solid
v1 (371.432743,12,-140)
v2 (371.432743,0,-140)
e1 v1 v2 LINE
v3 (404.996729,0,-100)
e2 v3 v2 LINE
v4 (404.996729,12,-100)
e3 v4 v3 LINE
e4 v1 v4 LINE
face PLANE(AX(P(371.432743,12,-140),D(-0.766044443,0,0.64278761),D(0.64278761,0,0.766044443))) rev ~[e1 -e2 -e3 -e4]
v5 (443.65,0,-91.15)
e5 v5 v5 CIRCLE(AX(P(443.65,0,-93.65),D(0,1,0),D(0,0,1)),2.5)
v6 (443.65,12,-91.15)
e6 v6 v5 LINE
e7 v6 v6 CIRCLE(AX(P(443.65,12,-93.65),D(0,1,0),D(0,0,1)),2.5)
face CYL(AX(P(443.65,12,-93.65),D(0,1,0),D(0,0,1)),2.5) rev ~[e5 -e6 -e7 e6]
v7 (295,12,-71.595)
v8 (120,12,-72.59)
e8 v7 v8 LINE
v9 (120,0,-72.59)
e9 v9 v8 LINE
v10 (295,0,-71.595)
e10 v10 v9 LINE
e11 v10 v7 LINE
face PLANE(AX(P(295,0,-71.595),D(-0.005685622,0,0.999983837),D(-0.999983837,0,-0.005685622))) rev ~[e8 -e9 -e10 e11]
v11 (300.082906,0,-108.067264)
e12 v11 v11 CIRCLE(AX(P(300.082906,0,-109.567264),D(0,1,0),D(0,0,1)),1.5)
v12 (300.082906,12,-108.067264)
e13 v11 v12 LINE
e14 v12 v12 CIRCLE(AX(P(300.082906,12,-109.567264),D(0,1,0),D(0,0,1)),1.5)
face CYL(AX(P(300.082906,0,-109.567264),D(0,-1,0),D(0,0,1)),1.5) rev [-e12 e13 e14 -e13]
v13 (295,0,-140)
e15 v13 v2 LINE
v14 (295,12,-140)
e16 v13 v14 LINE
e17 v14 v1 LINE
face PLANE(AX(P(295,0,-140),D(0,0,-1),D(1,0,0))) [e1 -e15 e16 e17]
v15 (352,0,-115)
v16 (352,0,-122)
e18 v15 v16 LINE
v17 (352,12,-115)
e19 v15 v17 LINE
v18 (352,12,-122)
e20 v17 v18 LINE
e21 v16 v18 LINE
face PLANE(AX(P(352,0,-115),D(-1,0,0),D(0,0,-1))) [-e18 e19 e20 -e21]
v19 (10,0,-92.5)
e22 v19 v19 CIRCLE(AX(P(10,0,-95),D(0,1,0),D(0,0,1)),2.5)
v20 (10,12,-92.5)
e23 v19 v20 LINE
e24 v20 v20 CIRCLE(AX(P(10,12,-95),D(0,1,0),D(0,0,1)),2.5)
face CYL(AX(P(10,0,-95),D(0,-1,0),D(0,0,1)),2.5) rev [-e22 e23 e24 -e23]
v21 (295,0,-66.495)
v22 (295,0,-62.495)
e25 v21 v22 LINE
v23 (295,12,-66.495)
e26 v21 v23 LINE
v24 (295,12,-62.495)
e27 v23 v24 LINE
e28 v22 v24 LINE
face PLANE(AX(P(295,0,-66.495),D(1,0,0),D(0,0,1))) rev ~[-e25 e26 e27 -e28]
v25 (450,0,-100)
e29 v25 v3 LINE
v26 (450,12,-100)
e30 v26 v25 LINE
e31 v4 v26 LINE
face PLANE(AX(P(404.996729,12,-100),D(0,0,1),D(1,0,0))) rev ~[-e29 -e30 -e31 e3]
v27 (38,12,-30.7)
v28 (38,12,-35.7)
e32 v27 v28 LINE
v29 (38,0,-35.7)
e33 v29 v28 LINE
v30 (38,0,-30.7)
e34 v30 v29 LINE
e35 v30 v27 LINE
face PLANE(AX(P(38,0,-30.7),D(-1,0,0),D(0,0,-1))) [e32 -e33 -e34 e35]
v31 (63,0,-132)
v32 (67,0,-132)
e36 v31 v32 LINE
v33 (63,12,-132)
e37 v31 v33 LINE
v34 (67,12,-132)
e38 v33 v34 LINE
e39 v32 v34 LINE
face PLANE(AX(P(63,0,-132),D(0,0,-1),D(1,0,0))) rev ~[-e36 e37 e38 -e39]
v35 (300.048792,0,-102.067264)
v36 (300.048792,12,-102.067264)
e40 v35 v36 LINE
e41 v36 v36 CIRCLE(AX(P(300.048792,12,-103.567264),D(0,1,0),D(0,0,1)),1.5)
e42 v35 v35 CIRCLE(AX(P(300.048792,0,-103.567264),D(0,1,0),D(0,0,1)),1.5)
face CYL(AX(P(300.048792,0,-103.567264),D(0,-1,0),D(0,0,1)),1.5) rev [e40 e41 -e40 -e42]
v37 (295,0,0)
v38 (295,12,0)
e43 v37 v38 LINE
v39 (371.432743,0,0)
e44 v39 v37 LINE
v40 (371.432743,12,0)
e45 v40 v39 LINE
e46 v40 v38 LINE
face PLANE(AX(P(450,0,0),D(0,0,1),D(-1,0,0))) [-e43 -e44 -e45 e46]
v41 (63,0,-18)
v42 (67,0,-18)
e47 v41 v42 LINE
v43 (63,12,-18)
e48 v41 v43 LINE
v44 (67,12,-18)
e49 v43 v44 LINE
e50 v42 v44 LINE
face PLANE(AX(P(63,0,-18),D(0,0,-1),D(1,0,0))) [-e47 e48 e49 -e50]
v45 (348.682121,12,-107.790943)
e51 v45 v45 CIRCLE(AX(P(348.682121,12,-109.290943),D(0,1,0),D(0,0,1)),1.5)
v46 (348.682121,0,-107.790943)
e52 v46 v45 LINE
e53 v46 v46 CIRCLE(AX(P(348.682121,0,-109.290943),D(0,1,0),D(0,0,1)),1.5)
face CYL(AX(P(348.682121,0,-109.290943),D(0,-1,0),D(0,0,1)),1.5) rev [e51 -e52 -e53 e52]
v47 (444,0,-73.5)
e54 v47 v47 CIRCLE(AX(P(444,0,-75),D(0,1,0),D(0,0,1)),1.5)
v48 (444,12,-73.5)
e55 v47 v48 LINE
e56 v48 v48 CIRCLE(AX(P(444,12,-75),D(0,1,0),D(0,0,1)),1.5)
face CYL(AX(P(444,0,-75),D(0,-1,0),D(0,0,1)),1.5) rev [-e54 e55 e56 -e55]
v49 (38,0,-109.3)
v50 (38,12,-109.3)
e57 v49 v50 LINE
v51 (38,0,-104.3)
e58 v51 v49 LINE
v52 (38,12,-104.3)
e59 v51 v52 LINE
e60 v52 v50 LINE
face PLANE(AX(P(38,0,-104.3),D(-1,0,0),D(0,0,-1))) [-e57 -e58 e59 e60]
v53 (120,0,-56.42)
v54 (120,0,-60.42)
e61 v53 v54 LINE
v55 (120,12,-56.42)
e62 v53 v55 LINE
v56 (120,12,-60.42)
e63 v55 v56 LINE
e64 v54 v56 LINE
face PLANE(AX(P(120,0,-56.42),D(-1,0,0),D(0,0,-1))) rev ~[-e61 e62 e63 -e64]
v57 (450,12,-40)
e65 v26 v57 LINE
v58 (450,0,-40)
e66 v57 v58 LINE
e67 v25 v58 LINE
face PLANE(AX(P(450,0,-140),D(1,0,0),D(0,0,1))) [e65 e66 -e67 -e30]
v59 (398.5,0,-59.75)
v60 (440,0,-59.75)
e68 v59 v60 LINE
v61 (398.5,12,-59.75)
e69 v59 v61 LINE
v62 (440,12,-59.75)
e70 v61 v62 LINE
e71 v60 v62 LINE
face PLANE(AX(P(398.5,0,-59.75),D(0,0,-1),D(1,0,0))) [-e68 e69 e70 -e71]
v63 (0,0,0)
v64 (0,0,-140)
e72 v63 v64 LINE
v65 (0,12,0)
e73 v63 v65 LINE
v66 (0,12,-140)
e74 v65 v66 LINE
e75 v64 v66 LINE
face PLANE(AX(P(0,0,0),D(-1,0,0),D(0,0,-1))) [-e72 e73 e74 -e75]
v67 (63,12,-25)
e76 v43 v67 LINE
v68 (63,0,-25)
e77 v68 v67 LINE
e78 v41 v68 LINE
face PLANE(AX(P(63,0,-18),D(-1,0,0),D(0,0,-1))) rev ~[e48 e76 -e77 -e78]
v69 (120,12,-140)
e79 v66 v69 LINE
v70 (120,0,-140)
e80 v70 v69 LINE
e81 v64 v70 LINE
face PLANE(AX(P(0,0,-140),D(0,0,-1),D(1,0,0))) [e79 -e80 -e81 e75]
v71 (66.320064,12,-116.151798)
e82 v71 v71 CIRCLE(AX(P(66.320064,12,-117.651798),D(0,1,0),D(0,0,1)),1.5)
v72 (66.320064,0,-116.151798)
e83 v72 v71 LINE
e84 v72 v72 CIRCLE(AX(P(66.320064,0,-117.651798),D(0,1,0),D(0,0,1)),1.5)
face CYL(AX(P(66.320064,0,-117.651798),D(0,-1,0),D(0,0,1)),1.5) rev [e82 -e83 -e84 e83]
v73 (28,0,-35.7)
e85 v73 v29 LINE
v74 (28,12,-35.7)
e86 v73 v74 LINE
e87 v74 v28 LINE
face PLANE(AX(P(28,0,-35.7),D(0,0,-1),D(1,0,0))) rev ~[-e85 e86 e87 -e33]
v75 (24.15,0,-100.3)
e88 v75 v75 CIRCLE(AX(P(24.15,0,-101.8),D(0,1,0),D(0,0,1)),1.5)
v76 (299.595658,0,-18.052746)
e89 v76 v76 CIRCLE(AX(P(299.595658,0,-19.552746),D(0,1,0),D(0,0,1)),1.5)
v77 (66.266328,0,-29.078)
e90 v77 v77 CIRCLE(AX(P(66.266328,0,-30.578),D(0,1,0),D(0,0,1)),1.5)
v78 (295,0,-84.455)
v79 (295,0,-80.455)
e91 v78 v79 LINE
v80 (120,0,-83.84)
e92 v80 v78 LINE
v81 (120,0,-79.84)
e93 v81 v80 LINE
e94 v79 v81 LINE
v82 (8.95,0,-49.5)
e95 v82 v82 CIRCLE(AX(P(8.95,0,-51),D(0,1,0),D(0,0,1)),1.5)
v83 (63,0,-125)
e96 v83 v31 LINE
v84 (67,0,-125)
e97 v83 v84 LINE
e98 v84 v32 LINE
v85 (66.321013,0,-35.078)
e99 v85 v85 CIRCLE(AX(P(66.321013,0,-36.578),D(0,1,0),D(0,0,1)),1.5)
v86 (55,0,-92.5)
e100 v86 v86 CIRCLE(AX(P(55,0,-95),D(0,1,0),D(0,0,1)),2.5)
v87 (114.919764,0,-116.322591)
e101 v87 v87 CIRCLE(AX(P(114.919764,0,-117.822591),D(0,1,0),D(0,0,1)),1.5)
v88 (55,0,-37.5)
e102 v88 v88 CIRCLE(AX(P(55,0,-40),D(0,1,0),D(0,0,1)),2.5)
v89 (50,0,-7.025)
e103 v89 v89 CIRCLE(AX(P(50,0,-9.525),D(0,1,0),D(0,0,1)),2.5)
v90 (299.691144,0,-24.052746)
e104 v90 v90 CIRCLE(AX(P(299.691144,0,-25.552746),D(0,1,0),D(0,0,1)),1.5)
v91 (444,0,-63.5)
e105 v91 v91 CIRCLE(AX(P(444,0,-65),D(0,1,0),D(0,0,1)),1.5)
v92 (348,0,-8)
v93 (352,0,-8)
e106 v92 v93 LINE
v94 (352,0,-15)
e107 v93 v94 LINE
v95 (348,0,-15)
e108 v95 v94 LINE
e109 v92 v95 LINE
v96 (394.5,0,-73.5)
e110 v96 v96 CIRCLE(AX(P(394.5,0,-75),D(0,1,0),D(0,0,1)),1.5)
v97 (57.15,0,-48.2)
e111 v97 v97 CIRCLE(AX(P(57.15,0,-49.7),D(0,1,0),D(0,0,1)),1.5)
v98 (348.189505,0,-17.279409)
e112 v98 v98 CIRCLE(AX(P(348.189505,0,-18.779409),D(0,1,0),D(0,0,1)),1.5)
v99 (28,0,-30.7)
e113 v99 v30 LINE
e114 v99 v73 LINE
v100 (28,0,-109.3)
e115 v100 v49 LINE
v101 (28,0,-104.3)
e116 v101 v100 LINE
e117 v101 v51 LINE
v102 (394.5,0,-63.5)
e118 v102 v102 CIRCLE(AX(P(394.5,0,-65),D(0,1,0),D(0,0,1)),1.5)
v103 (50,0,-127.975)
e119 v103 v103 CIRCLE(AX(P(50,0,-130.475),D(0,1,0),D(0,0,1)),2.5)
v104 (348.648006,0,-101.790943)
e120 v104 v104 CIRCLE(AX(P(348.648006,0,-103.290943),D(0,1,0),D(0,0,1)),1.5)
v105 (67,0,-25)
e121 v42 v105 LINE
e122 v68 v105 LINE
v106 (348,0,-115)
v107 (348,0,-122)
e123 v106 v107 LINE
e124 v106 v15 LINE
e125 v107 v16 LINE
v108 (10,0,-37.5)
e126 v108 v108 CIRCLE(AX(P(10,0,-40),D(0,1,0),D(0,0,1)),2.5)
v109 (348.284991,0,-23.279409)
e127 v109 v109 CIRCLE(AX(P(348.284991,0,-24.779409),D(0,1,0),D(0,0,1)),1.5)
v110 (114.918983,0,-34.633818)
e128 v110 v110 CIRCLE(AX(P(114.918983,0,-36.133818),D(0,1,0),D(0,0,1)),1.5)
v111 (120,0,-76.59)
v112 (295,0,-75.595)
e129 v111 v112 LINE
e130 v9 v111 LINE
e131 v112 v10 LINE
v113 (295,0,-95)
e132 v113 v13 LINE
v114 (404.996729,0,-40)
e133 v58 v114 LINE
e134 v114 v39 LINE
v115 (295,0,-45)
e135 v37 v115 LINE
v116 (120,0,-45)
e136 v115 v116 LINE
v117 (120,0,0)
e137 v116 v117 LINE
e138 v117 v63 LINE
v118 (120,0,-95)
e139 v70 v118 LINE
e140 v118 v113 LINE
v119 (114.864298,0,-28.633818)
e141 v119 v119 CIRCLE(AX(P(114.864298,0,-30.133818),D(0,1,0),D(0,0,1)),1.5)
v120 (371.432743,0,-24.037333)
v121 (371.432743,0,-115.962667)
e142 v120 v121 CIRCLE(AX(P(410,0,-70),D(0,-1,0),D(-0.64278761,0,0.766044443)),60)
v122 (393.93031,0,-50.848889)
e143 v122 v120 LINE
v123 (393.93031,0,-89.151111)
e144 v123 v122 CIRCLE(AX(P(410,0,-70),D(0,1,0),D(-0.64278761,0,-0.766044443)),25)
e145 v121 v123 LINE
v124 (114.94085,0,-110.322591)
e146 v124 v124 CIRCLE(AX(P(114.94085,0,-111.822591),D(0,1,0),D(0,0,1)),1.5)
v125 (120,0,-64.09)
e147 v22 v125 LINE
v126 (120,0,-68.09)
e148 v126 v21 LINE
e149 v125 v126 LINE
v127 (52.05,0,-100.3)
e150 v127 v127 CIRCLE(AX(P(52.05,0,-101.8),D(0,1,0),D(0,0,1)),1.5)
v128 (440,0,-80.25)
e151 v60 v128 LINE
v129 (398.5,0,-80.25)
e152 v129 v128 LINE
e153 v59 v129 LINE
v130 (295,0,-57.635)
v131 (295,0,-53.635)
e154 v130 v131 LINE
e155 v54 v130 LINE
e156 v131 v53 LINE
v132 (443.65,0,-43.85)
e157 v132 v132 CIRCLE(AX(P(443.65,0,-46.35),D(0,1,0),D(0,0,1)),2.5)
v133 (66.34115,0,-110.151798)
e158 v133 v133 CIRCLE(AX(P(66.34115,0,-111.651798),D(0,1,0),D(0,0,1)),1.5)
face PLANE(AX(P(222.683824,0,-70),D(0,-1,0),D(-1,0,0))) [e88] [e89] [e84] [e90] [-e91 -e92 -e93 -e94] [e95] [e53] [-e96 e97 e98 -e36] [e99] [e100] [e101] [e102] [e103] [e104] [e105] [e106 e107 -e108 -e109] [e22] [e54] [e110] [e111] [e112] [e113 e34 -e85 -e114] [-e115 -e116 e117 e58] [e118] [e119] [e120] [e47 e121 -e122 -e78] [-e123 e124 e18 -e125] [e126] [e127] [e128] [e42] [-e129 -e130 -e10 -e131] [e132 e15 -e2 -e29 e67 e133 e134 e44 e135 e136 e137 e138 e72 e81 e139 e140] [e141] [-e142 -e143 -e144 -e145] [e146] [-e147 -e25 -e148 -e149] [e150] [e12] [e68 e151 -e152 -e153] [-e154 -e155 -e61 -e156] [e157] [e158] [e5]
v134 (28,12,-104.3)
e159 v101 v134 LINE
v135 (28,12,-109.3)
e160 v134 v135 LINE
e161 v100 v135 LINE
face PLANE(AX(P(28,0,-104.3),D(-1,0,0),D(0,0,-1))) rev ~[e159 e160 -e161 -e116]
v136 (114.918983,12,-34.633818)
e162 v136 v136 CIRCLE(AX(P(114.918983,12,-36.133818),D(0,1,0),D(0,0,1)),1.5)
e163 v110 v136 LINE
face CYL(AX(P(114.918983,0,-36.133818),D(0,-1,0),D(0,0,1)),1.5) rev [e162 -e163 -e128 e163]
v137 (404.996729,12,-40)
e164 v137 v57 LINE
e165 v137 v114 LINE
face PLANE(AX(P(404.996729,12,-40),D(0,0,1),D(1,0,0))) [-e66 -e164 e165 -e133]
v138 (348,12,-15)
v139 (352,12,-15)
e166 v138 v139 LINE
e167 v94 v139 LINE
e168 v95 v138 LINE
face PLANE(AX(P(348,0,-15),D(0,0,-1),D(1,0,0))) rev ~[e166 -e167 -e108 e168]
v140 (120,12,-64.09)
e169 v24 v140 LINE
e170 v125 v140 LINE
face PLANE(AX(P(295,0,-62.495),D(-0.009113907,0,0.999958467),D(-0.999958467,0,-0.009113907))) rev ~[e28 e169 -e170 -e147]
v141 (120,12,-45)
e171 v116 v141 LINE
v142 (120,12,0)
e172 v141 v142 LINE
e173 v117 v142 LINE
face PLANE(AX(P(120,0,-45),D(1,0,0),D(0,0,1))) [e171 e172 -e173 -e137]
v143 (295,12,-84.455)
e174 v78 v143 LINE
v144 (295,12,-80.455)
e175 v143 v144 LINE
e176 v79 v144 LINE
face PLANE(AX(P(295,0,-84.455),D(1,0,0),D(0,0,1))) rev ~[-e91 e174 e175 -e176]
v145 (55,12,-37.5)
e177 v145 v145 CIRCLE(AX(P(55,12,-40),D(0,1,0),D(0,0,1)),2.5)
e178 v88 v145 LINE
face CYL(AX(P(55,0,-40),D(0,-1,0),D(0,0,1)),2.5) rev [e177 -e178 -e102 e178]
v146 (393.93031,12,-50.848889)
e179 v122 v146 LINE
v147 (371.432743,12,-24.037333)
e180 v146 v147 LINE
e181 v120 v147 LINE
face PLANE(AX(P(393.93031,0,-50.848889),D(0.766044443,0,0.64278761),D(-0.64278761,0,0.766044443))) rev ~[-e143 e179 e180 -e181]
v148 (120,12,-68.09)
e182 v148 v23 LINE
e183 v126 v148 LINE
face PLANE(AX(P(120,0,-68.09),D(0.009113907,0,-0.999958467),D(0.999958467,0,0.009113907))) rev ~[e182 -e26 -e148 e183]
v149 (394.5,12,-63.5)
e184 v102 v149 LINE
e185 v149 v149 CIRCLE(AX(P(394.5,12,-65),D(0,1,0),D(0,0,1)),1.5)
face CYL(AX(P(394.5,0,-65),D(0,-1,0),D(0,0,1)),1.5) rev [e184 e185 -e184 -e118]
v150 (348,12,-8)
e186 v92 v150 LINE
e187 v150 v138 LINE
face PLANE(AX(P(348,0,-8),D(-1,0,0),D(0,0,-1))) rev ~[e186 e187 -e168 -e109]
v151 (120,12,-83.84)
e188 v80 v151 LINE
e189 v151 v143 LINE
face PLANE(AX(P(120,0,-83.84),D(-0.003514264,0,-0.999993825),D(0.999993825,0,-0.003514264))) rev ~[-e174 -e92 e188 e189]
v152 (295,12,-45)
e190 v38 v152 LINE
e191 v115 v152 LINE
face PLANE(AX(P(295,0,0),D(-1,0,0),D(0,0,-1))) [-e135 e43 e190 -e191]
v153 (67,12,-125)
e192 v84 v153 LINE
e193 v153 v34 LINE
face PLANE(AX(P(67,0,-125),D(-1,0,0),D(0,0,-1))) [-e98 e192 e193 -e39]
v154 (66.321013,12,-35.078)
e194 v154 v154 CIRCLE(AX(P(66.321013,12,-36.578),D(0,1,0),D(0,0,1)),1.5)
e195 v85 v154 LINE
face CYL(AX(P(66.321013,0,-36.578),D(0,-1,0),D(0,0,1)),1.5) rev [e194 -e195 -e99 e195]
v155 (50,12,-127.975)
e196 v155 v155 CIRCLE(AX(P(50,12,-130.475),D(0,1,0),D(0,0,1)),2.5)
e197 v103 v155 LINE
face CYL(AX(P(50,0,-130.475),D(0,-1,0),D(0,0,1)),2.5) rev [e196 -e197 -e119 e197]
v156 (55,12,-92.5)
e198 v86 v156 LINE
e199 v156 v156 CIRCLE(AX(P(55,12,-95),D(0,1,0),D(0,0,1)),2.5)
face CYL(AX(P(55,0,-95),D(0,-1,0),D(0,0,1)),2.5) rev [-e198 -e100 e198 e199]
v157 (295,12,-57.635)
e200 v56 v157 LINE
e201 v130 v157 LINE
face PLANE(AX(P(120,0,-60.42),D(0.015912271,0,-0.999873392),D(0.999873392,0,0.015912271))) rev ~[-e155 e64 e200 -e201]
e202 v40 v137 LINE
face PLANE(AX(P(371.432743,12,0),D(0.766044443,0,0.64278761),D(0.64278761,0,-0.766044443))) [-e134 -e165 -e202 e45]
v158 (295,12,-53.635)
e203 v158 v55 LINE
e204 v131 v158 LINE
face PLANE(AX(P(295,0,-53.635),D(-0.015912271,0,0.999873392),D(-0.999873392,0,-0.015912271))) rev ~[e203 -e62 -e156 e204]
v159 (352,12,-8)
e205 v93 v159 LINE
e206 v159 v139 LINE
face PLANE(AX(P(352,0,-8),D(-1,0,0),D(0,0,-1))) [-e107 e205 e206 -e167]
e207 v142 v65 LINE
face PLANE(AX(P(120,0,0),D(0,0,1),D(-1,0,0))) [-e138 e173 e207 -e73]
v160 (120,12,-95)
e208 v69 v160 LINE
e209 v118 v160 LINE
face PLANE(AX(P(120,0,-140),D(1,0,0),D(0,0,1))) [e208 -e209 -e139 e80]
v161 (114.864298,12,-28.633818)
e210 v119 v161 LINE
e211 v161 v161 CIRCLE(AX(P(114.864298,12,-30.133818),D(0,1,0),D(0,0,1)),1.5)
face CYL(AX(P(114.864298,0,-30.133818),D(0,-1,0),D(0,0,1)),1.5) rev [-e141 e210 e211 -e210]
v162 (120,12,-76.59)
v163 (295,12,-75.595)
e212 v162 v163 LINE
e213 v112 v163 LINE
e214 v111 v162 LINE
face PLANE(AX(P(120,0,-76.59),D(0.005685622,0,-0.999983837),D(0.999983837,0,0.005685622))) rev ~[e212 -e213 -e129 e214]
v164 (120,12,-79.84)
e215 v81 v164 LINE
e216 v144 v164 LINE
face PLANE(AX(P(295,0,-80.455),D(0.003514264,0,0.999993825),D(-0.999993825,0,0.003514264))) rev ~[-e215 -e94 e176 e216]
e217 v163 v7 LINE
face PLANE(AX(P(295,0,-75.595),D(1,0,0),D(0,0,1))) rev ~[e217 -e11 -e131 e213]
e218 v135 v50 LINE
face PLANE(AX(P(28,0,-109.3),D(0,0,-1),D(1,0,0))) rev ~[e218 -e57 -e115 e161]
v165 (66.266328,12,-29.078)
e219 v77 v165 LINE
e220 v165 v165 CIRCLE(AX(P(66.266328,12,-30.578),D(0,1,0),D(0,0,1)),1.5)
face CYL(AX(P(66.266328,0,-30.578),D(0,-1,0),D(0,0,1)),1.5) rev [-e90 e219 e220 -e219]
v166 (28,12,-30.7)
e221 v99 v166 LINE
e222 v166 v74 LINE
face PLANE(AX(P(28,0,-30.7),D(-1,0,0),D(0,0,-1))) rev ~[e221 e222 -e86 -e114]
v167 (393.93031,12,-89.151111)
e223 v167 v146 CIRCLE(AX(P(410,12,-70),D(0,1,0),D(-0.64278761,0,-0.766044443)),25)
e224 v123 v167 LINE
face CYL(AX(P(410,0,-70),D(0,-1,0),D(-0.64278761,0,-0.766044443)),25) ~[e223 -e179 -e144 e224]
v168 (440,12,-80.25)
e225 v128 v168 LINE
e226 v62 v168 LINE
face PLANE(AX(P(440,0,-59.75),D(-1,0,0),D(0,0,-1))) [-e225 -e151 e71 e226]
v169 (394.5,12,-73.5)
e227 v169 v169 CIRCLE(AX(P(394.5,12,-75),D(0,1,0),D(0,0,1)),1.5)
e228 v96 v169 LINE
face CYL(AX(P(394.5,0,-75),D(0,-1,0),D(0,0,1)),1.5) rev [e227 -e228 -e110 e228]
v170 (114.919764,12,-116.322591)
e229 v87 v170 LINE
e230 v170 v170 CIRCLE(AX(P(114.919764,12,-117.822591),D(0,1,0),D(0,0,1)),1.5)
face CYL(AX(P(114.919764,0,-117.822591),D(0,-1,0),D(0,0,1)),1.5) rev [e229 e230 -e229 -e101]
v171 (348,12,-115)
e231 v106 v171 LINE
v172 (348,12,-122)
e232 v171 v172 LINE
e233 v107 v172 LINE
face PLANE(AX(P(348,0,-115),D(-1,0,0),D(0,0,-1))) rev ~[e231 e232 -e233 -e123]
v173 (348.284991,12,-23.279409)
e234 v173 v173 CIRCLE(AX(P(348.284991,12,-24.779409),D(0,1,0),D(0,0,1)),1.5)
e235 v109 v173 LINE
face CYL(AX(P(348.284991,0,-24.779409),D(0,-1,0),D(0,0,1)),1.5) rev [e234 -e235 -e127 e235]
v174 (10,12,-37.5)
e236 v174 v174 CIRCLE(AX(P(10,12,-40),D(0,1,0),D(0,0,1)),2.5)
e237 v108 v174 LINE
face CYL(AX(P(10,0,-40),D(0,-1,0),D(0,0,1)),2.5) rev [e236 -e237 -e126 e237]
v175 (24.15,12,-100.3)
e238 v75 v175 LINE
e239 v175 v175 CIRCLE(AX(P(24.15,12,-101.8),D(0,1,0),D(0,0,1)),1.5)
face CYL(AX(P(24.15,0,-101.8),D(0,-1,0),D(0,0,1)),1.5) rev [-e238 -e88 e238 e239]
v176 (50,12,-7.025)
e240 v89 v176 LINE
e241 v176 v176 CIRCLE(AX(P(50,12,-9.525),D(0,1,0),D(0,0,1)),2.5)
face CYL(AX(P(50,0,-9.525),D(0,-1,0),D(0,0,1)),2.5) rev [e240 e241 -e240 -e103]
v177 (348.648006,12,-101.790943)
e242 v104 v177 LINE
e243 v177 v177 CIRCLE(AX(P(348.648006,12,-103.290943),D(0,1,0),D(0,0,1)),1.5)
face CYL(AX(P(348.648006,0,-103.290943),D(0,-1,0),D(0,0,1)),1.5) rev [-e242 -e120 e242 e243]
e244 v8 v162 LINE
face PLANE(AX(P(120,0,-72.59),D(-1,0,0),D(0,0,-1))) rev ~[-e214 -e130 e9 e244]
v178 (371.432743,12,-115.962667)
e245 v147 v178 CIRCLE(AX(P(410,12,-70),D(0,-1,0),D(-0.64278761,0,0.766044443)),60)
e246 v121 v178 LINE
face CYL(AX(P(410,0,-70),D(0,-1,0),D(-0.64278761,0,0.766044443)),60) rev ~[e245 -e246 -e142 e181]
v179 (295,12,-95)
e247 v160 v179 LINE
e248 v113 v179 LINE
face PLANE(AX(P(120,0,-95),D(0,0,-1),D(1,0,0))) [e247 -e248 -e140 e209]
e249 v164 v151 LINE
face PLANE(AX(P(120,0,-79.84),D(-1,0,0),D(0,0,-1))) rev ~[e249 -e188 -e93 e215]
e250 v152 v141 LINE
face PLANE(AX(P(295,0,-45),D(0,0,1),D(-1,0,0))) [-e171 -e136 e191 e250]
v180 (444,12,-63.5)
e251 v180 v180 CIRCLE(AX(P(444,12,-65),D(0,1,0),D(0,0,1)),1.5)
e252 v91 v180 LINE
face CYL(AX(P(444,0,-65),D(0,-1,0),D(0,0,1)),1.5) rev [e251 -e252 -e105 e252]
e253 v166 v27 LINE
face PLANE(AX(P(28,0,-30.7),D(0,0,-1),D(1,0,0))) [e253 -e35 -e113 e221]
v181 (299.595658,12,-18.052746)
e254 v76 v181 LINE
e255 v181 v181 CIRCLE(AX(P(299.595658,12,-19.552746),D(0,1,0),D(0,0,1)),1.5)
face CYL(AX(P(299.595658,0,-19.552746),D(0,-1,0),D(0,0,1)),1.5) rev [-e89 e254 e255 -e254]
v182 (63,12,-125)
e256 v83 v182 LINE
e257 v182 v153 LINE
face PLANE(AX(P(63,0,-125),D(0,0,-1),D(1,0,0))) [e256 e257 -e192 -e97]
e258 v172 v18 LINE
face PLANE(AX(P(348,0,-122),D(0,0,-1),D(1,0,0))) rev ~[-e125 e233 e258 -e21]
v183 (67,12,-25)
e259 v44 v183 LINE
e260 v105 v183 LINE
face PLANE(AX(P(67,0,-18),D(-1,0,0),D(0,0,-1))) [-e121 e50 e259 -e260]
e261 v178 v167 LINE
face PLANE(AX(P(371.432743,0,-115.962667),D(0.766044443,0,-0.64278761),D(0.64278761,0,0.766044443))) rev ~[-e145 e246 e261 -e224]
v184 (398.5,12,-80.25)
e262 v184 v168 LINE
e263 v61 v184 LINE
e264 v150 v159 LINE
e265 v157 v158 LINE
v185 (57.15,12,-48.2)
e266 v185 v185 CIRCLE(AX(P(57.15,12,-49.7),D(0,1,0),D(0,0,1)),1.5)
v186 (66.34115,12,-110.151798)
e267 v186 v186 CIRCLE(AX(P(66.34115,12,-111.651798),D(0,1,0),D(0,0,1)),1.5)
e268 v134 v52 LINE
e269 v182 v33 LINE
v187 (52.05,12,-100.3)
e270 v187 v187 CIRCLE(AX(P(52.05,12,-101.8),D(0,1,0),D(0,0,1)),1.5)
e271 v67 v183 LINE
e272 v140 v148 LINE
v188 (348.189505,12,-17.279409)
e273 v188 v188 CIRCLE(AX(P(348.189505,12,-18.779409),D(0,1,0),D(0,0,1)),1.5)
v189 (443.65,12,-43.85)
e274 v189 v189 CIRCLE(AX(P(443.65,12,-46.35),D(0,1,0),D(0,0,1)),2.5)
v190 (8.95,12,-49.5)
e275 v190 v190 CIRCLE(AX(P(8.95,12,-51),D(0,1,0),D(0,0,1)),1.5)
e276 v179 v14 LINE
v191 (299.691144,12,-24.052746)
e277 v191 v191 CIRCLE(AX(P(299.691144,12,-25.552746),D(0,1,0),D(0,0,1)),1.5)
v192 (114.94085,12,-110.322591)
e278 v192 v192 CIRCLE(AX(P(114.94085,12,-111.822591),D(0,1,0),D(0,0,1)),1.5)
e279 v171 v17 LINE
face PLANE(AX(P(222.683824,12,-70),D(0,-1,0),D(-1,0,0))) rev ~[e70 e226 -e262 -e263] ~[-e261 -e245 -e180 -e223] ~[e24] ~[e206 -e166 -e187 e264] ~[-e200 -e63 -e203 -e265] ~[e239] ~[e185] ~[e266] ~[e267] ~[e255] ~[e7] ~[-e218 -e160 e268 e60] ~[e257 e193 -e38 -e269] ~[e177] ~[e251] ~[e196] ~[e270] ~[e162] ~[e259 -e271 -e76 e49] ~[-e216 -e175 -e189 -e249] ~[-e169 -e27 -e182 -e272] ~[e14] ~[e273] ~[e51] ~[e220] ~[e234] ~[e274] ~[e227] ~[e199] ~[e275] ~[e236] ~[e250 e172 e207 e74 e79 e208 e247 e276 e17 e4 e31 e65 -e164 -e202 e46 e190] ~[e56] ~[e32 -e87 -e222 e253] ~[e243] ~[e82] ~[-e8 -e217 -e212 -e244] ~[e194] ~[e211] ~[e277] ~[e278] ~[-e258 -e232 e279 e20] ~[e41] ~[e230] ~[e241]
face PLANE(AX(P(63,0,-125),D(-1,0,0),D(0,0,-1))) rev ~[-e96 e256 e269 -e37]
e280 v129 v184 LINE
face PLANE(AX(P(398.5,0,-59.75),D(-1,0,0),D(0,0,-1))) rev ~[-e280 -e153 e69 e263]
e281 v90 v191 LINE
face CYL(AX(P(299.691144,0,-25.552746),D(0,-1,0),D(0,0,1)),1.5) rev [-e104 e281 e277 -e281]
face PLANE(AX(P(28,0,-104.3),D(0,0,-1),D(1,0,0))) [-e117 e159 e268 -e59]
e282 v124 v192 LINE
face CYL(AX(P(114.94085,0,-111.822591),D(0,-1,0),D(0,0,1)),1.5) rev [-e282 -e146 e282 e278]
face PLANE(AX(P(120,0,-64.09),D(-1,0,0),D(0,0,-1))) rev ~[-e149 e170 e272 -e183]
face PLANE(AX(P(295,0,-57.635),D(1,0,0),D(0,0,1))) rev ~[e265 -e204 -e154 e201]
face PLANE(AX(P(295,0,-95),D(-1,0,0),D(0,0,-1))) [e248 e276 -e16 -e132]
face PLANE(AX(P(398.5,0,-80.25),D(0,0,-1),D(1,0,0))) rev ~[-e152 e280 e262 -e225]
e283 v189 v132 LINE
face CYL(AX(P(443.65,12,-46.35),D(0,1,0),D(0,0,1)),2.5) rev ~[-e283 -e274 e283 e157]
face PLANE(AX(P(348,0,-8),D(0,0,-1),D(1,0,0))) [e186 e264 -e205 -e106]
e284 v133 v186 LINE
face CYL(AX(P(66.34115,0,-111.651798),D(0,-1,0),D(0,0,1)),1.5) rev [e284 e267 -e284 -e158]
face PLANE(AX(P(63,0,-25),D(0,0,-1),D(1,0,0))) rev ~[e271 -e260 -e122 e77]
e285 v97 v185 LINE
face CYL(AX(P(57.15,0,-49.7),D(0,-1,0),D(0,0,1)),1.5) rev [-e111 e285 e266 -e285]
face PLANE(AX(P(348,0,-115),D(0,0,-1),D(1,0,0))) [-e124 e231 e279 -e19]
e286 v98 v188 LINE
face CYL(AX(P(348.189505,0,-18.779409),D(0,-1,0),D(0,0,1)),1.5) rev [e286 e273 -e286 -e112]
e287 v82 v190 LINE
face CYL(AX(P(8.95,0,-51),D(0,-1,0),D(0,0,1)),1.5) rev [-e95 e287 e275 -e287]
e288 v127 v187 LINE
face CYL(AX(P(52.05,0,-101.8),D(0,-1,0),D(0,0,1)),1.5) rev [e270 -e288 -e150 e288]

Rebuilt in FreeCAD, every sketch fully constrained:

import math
import FreeCAD as App
import Part
import Sketcher
from FreeCAD import Vector
Q = App.Units.Quantity


def add_polygon(sketch, points):
    """Adds a closed chain of lines whose ends are joined by coincident constraints."""
    first, n = sketch.GeometryCount, len(points)
    for a, b in zip(points, points[1:] + points[:1]):
        sketch.addGeometry(Part.LineSegment(App.Vector(*a, 0), App.Vector(*b, 0)), False)
    for i in range(n):
        sketch.addConstraint(Sketcher.Constraint("Coincident", first + i, 2, first + (i + 1) % n, 1))

doc = App.newDocument("Part")
body = doc.addObject("PartDesign::Body", "Body")

# Sketch on XZ plane
sketch1 = body.newObject("Sketcher::SketchObject", "Sketch")
sketch1.AttachmentSupport = (doc.getObject("XZ_Plane"), [""])
sketch1.MapMode = "FlatFace"
add_polygon(sketch1, [(450, -140), (295, -140), (295, -95), (120, -95), (120, -140), (0, -140), (0, 0), (120, 0), (120, -45), (295, -45), (295, 0), (450, 0)])  # lines 0-11
add_polygon(sketch1, [(348, -8), (348, -15), (352, -15), (352, -8)])  # lines 12-15
sketch1.addGeometry(Part.Circle(Vector(348.189505, -18.779409, 0), Vector(0, 0, 1), 1.5), False)  # 16
sketch1.addGeometry(Part.Circle(Vector(348.284991, -24.779409, 0), Vector(0, 0, 1), 1.5), False)  # 17
sketch1.addGeometry(Part.Circle(Vector(299.595658, -19.552746, 0), Vector(0, 0, 1), 1.5), False)  # 18
sketch1.addGeometry(Part.Circle(Vector(299.691144, -25.552746, 0), Vector(0, 0, 1), 1.5), False)  # 19
sketch1.addGeometry(Part.Circle(Vector(444, -65, 0), Vector(0, 0, 1), 1.5), False)  # 20
sketch1.addGeometry(Part.Circle(Vector(394.5, -65, 0), Vector(0, 0, 1), 1.5), False)  # 21
add_polygon(sketch1, [(63, -18), (63, -25), (67, -25), (67, -18)])  # lines 22-25
sketch1.addGeometry(Part.Circle(Vector(50, -9.525, 0), Vector(0, 0, 1), 2.5), False)  # 26
sketch1.addGeometry(Part.Circle(Vector(114.864298, -30.133818, 0), Vector(0, 0, 1), 1.5), False)  # 27
sketch1.addGeometry(Part.Circle(Vector(66.266328, -30.578, 0), Vector(0, 0, 1), 1.5), False)  # 28
sketch1.addGeometry(Part.Circle(Vector(114.918983, -36.133818, 0), Vector(0, 0, 1), 1.5), False)  # 29
sketch1.addGeometry(Part.Circle(Vector(66.321013, -36.578, 0), Vector(0, 0, 1), 1.5), False)  # 30
add_polygon(sketch1, [(28, -30.7), (28, -35.7), (38, -35.7), (38, -30.7)])  # lines 31-34
add_polygon(sketch1, [(120, -60.42), (295, -57.635), (295, -53.635), (120, -56.42)])  # lines 35-38
add_polygon(sketch1, [(120, -68.09), (295, -66.495), (295, -62.495), (120, -64.09)])  # lines 39-42
sketch1.addGeometry(Part.Circle(Vector(55, -40, 0), Vector(0, 0, 1), 2.5), False)  # 43
sketch1.addGeometry(Part.Circle(Vector(10, -40, 0), Vector(0, 0, 1), 2.5), False)  # 44
sketch1.addGeometry(Part.Circle(Vector(57.15, -49.7, 0), Vector(0, 0, 1), 1.5), False)  # 45
sketch1.addGeometry(Part.Circle(Vector(8.95, -51, 0), Vector(0, 0, 1), 1.5), False)  # 46
add_polygon(sketch1, [(398.5, -59.75), (398.5, -80.25), (440, -80.25), (440, -59.75)])  # lines 47-50
sketch1.addGeometry(Part.Circle(Vector(444, -75, 0), Vector(0, 0, 1), 1.5), False)  # 51
sketch1.addGeometry(Part.Circle(Vector(394.5, -75, 0), Vector(0, 0, 1), 1.5), False)  # 52
sketch1.addGeometry(Part.LineSegment(Vector(393.93031, -50.848889, 0), Vector(371.432743, -24.037333, 0)), False)  # 53
sketch1.addGeometry(Part.ArcOfCircle(Part.Circle(Vector(410, -70, 0), Vector(0, 0, 1), 60), math.radians(130), math.radians(230)), False)  # 54
sketch1.addGeometry(Part.LineSegment(Vector(371.432743, -115.962667, 0), Vector(393.93031, -89.151111, 0)), False)  # 55
sketch1.addGeometry(Part.ArcOfCircle(Part.Circle(Vector(410, -70, 0), Vector(0, 0, 1), 25), math.radians(130), math.radians(230)), False)  # 56
sketch1.addGeometry(Part.Circle(Vector(348.648006, -103.290943, 0), Vector(0, 0, 1), 1.5), False)  # 57
sketch1.addGeometry(Part.Circle(Vector(348.682121, -109.290943, 0), Vector(0, 0, 1), 1.5), False)  # 58
add_polygon(sketch1, [(348, -115), (348, -122), (352, -122), (352, -115)])  # lines 59-62
sketch1.addGeometry(Part.Circle(Vector(300.048792, -103.567264, 0), Vector(0, 0, 1), 1.5), False)  # 63
sketch1.addGeometry(Part.Circle(Vector(300.082906, -109.567264, 0), Vector(0, 0, 1), 1.5), False)  # 64
add_polygon(sketch1, [(120, -76.59), (295, -75.595), (295, -71.595), (120, -72.59)])  # lines 65-68
add_polygon(sketch1, [(120, -83.84), (295, -84.455), (295, -80.455), (120, -79.84)])  # lines 69-72
sketch1.addGeometry(Part.Circle(Vector(55, -95, 0), Vector(0, 0, 1), 2.5), False)  # 73
sketch1.addGeometry(Part.Circle(Vector(10, -95, 0), Vector(0, 0, 1), 2.5), False)  # 74
sketch1.addGeometry(Part.Circle(Vector(114.94085, -111.822591, 0), Vector(0, 0, 1), 1.5), False)  # 75
sketch1.addGeometry(Part.Circle(Vector(66.34115, -111.651798, 0), Vector(0, 0, 1), 1.5), False)  # 76
sketch1.addGeometry(Part.Circle(Vector(52.05, -101.8, 0), Vector(0, 0, 1), 1.5), False)  # 77
sketch1.addGeometry(Part.Circle(Vector(24.15, -101.8, 0), Vector(0, 0, 1), 1.5), False)  # 78
add_polygon(sketch1, [(28, -104.3), (28, -109.3), (38, -109.3), (38, -104.3)])  # lines 79-82
sketch1.addGeometry(Part.Circle(Vector(114.919764, -117.822591, 0), Vector(0, 0, 1), 1.5), False)  # 83
sketch1.addGeometry(Part.Circle(Vector(66.320064, -117.651798, 0), Vector(0, 0, 1), 1.5), False)  # 84
add_polygon(sketch1, [(63, -125), (63, -132), (67, -132), (67, -125)])  # lines 85-88
sketch1.addGeometry(Part.Circle(Vector(50, -130.475, 0), Vector(0, 0, 1), 2.5), False)  # 89
sketch1.addConstraint(Sketcher.Constraint("Coincident", 53, 2, 54, 1))
sketch1.addConstraint(Sketcher.Constraint("Coincident", 54, 2, 55, 1))
sketch1.addConstraint(Sketcher.Constraint("Coincident", 55, 2, 56, 2))
sketch1.addConstraint(Sketcher.Constraint("Coincident", 56, 1, 53, 1))
sketch1.addConstraint(Sketcher.Constraint("Horizontal", 0))
sketch1.addConstraint(Sketcher.Constraint("Vertical", 1))
sketch1.addConstraint(Sketcher.Constraint("Horizontal", 2))
sketch1.addConstraint(Sketcher.Constraint("Vertical", 3))
sketch1.addConstraint(Sketcher.Constraint("Horizontal", 4))
sketch1.addConstraint(Sketcher.Constraint("Vertical", 5))
sketch1.addConstraint(Sketcher.Constraint("Horizontal", 6))
sketch1.addConstraint(Sketcher.Constraint("Vertical", 7))
sketch1.addConstraint(Sketcher.Constraint("Horizontal", 8))
sketch1.addConstraint(Sketcher.Constraint("Vertical", 9))
sketch1.addConstraint(Sketcher.Constraint("Horizontal", 10))
sketch1.addConstraint(Sketcher.Constraint("Vertical", 11))
sketch1.addConstraint(Sketcher.Constraint("Vertical", 12))
sketch1.addConstraint(Sketcher.Constraint("Horizontal", 13))
sketch1.addConstraint(Sketcher.Constraint("Vertical", 14))
sketch1.addConstraint(Sketcher.Constraint("Horizontal", 15))
sketch1.addConstraint(Sketcher.Constraint("Vertical", 22))
sketch1.addConstraint(Sketcher.Constraint("Horizontal", 23))
sketch1.addConstraint(Sketcher.Constraint("Vertical", 24))
sketch1.addConstraint(Sketcher.Constraint("Horizontal", 25))
sketch1.addConstraint(Sketcher.Constraint("Vertical", 31))
sketch1.addConstraint(Sketcher.Constraint("Horizontal", 32))
sketch1.addConstraint(Sketcher.Constraint("Vertical", 33))
sketch1.addConstraint(Sketcher.Constraint("Horizontal", 34))
sketch1.addConstraint(Sketcher.Constraint("Vertical", 36))
sketch1.addConstraint(Sketcher.Constraint("Vertical", 38))
sketch1.addConstraint(Sketcher.Constraint("Vertical", 40))
sketch1.addConstraint(Sketcher.Constraint("Vertical", 42))
sketch1.addConstraint(Sketcher.Constraint("Vertical", 47))
sketch1.addConstraint(Sketcher.Constraint("Horizontal", 48))
sketch1.addConstraint(Sketcher.Constraint("Vertical", 49))
sketch1.addConstraint(Sketcher.Constraint("Horizontal", 50))
sketch1.addConstraint(Sketcher.Constraint("Vertical", 59))
sketch1.addConstraint(Sketcher.Constraint("Horizontal", 60))
sketch1.addConstraint(Sketcher.Constraint("Vertical", 61))
sketch1.addConstraint(Sketcher.Constraint("Horizontal", 62))
sketch1.addConstraint(Sketcher.Constraint("Vertical", 66))
sketch1.addConstraint(Sketcher.Constraint("Vertical", 68))
sketch1.addConstraint(Sketcher.Constraint("Vertical", 70))
sketch1.addConstraint(Sketcher.Constraint("Vertical", 72))
sketch1.addConstraint(Sketcher.Constraint("Vertical", 79))
sketch1.addConstraint(Sketcher.Constraint("Horizontal", 80))
sketch1.addConstraint(Sketcher.Constraint("Vertical", 81))
sketch1.addConstraint(Sketcher.Constraint("Horizontal", 82))
sketch1.addConstraint(Sketcher.Constraint("Vertical", 85))
sketch1.addConstraint(Sketcher.Constraint("Horizontal", 86))
sketch1.addConstraint(Sketcher.Constraint("Vertical", 87))
sketch1.addConstraint(Sketcher.Constraint("Horizontal", 88))
sketch1.addConstraint(Sketcher.Constraint("Coincident", 5, 2, -1, 1))
sketch1.addConstraint(Sketcher.Constraint("Coincident", 56, 3, 54, 3))
sketch1.addConstraint(Sketcher.Constraint("Equal", 16, 17))
sketch1.addConstraint(Sketcher.Constraint("Equal", 17, 18))
sketch1.addConstraint(Sketcher.Constraint("Equal", 18, 19))
sketch1.addConstraint(Sketcher.Constraint("Equal", 19, 20))
sketch1.addConstraint(Sketcher.Constraint("Equal", 20, 21))
sketch1.addConstraint(Sketcher.Constraint("Equal", 21, 27))
sketch1.addConstraint(Sketcher.Constraint("Equal", 27, 28))
sketch1.addConstraint(Sketcher.Constraint("Equal", 28, 29))
sketch1.addConstraint(Sketcher.Constraint("Equal", 29, 30))
sketch1.addConstraint(Sketcher.Constraint("Equal", 26, 43))
sketch1.addConstraint(Sketcher.Constraint("Equal", 43, 44))
sketch1.addConstraint(Sketcher.Constraint("Equal", 30, 45))
sketch1.addConstraint(Sketcher.Constraint("Equal", 45, 46))
sketch1.addConstraint(Sketcher.Constraint("Equal", 46, 51))
sketch1.addConstraint(Sketcher.Constraint("Equal", 51, 52))
sketch1.addConstraint(Sketcher.Constraint("Equal", 52, 57))
sketch1.addConstraint(Sketcher.Constraint("Equal", 57, 58))
sketch1.addConstraint(Sketcher.Constraint("Equal", 58, 63))
sketch1.addConstraint(Sketcher.Constraint("Equal", 63, 64))
sketch1.addConstraint(Sketcher.Constraint("Equal", 44, 73))
sketch1.addConstraint(Sketcher.Constraint("Equal", 73, 74))
sketch1.addConstraint(Sketcher.Constraint("Equal", 64, 75))
sketch1.addConstraint(Sketcher.Constraint("Equal", 75, 76))
sketch1.addConstraint(Sketcher.Constraint("Equal", 76, 77))
sketch1.addConstraint(Sketcher.Constraint("Equal", 77, 78))
sketch1.addConstraint(Sketcher.Constraint("Equal", 78, 83))
sketch1.addConstraint(Sketcher.Constraint("Equal", 83, 84))
sketch1.addConstraint(Sketcher.Constraint("Equal", 74, 89))
sketch1.addConstraint(Sketcher.Constraint("PointOnObject", 9, 2, -1))
sketch1.addConstraint(Sketcher.Constraint("Parallel", 35, 37))
sketch1.addConstraint(Sketcher.Constraint("Parallel", 39, 41))
sketch1.addConstraint(Sketcher.Constraint("Parallel", 65, 67))
sketch1.addConstraint(Sketcher.Constraint("Parallel", 69, 71))
sketch1.addConstraint(Sketcher.Constraint("Horizontal", 20, 3, 21, 3))
sketch1.addConstraint(Sketcher.Constraint("Horizontal", 43, 3, 44, 3))
sketch1.addConstraint(Sketcher.Constraint("Horizontal", 51, 3, 52, 3))
sketch1.addConstraint(Sketcher.Constraint("Horizontal", 73, 3, 74, 3))
sketch1.addConstraint(Sketcher.Constraint("Horizontal", 77, 3, 78, 3))
sketch1.addConstraint(Sketcher.Constraint("Horizontal", 74, 3, 1, 2))
sketch1.addConstraint(Sketcher.Constraint("Horizontal", 0, 2, 3, 2))
sketch1.addConstraint(Sketcher.Constraint("Vertical", 20, 3, 51, 3))
sketch1.addConstraint(Sketcher.Constraint("Vertical", 21, 3, 52, 3))
sketch1.addConstraint(Sketcher.Constraint("Vertical", 43, 3, 73, 3))
sketch1.addConstraint(Sketcher.Constraint("Vertical", 44, 3, 74, 3))
sketch1.addConstraint(Sketcher.Constraint("Vertical", 26, 3, 89, 3))
sketch1.addConstraint(Sketcher.Constraint("Vertical", 3, 2, 6, 2))
sketch1.addConstraint(Sketcher.Constraint("Vertical", 1, 2, 8, 2))
sketch1.addConstraint(Sketcher.Constraint("Vertical", 9, 2, 35, 2))
sketch1.addConstraint(Sketcher.Constraint("Vertical", 7, 2, 37, 2))
sketch1.addConstraint(Sketcher.Constraint("Vertical", 36, 2, 39, 2))
sketch1.addConstraint(Sketcher.Constraint("Vertical", 38, 2, 41, 2))
sketch1.addConstraint(Sketcher.Constraint("Vertical", 53, 2, 54, 2))
sketch1.addConstraint(Sketcher.Constraint("Vertical", 55, 2, 56, 1))
sketch1.addConstraint(Sketcher.Constraint("Vertical", 15, 2, 59, 2))
sketch1.addConstraint(Sketcher.Constraint("Vertical", 14, 2, 60, 2))
sketch1.addConstraint(Sketcher.Constraint("Vertical", 40, 2, 65, 2))
sketch1.addConstraint(Sketcher.Constraint("Vertical", 42, 2, 67, 2))
sketch1.addConstraint(Sketcher.Constraint("Vertical", 66, 2, 69, 2))
sketch1.addConstraint(Sketcher.Constraint("Vertical", 68, 2, 71, 2))
sketch1.addConstraint(Sketcher.Constraint("Vertical", 34, 2, 79, 2))
sketch1.addConstraint(Sketcher.Constraint("Vertical", 33, 2, 80, 2))
sketch1.addConstraint(Sketcher.Constraint("Vertical", 25, 2, 85, 2))
sketch1.addConstraint(Sketcher.Constraint("Vertical", 24, 2, 86, 2))
sketch1.addConstraint(Sketcher.Constraint("Equal", 15, 23))
sketch1.addConstraint(Sketcher.Constraint("Equal", 3, 7))
sketch1.addConstraint(Sketcher.Constraint("Equal", 14, 22))
sketch1.addConstraint(Sketcher.Constraint("Equal", 88, 36))
sketch1.addConstraint(Sketcher.Constraint("Equal", 38, 40))
sketch1.addConstraint(Sketcher.Constraint("Equal", 24, 59))
sketch1.addConstraint(Sketcher.Constraint("Equal", 42, 66))
sketch1.addConstraint(Sketcher.Constraint("Equal", 68, 70))
sketch1.addConstraint(Sketcher.Constraint("Equal", 33, 79))
sketch1.addConstraint(Sketcher.Constraint("Equal", 61, 85))
sketch1.addConstraint(Sketcher.Constraint("Diameter", 16, 3.0))
sketch1.addConstraint(Sketcher.Constraint("Diameter", 26, 5.0))
sketch1.addConstraint(Sketcher.Constraint("Radius", 54, 60.0))
sketch1.addConstraint(Sketcher.Constraint("Radius", 56, 25.0))
sketch1.addConstraint(Sketcher.Constraint("DistanceX", 0, 2, 0, 1, 155.0))
sketch1.addConstraint(Sketcher.Constraint("DistanceX", 2, 2, 2, 1, 175.0))
sketch1.addConstraint(Sketcher.Constraint("DistanceX", 4, 2, 4, 1, 120.0))
sketch1.addConstraint(Sketcher.Constraint("DistanceX", 13, 1, 13, 2, 4.0))
sketch1.addConstraint(Sketcher.Constraint("DistanceX", 32, 1, 32, 2, 10.0))
sketch1.addConstraint(Sketcher.Constraint("DistanceY", 1, 1, 1, 2, 45.0))
sketch1.addConstraint(Sketcher.Constraint("DistanceY", 5, 1, 5, 2, 140.0))
sketch1.addConstraint(Sketcher.Constraint("DistanceY", 12, 2, 12, 1, 7.0))
sketch1.addConstraint(Sketcher.Constraint("DistanceY", 31, 2, 31, 1, 5.0))
sketch1.addConstraint(Sketcher.Constraint("Angle", 53, Q("130 deg")))
sketch1.addConstraint(Sketcher.Constraint("DistanceX", 48, 1, 48, 2, 41.5))
sketch1.addConstraint(Sketcher.Constraint("DistanceY", 47, 2, 47, 1, 20.5))
sketch1.addConstraint(Sketcher.Constraint("DistanceX", -1, 1, 20, 3, 444.0))
sketch1.addConstraint(Sketcher.Constraint("DistanceY", 20, 3, -1, 1, 65.0))
sketch1.addConstraint(Sketcher.Constraint("DistanceX", -1, 1, 26, 3, 50.0))
sketch1.addConstraint(Sketcher.Constraint("DistanceX", -1, 1, 43, 3, 55.0))
sketch1.addConstraint(Sketcher.Constraint("DistanceY", 43, 3, -1, 1, 40.0))
sketch1.addConstraint(Sketcher.Constraint("DistanceX", -1, 1, 44, 3, 10.0))
sketch1.addConstraint(Sketcher.Constraint("DistanceY", 46, 3, -1, 1, 51.0))
sketch1.addConstraint(Sketcher.Constraint("DistanceY", 51, 3, -1, 1, 75.0))
sketch1.addConstraint(Sketcher.Constraint("DistanceX", -1, 1, 54, 3, 410.0))
sketch1.addConstraint(Sketcher.Constraint("DistanceY", 54, 3, -1, 1, 70.0))
sketch1.addConstraint(Sketcher.Constraint("DistanceX", -1, 1, 12, 2, 348.0))
sketch1.addConstraint(Sketcher.Constraint("DistanceY", 12, 2, -1, 1, 15.0))
sketch1.addConstraint(Sketcher.Constraint("DistanceX", -1, 1, 22, 2, 63.0))
sketch1.addConstraint(Sketcher.Constraint("DistanceY", 22, 2, -1, 1, 25.0))
sketch1.addConstraint(Sketcher.Constraint("DistanceX", -1, 1, 31, 2, 28.0))
sketch1.addConstraint(Sketcher.Constraint("DistanceX", -1, 1, 48, 2, 440.0))
sketch1.addConstraint(Sketcher.Constraint("DistanceY", 59, 2, -1, 1, 122.0))
sketch1.addConstraint(Sketcher.Constraint("DistanceY", 85, 2, -1, 1, 132.0))
sketch1.addConstraint(Sketcher.Constraint("DistanceX", -1, 1, 21, 3, 394.5))
sketch1.addConstraint(Sketcher.Constraint("DistanceY", 45, 3, -1, 1, 49.7))
sketch1.addConstraint(Sketcher.Constraint("DistanceY", 77, 3, -1, 1, 101.8))
sketch1.addConstraint(Sketcher.Constraint("DistanceY", 31, 2, -1, 1, 35.7))
sketch1.addConstraint(Sketcher.Constraint("DistanceY", 79, 2, -1, 1, 109.3))
sketch1.addConstraint(Sketcher.Constraint("DistanceX", -1, 1, 45, 3, 57.15))
sketch1.addConstraint(Sketcher.Constraint("DistanceX", -1, 1, 46, 3, 8.95))
sketch1.addConstraint(Sketcher.Constraint("DistanceX", -1, 1, 77, 3, 52.05))
sketch1.addConstraint(Sketcher.Constraint("DistanceX", -1, 1, 78, 3, 24.15))
sketch1.addConstraint(Sketcher.Constraint("DistanceY", 37, 2, -1, 1, 56.42))
sketch1.addConstraint(Sketcher.Constraint("DistanceY", 41, 2, -1, 1, 64.09))
sketch1.addConstraint(Sketcher.Constraint("DistanceY", 47, 2, -1, 1, 80.25))
sketch1.addConstraint(Sketcher.Constraint("DistanceY", 67, 2, -1, 1, 72.59))
sketch1.addConstraint(Sketcher.Constraint("DistanceY", 71, 2, -1, 1, 79.84))
sketch1.addConstraint(Sketcher.Constraint("DistanceY", 26, 3, -1, 1, 9.525))
sketch1.addConstraint(Sketcher.Constraint("DistanceY", 28, 3, -1, 1, 30.578))
sketch1.addConstraint(Sketcher.Constraint("DistanceY", 30, 3, -1, 1, 36.578))
sketch1.addConstraint(Sketcher.Constraint("DistanceY", 89, 3, -1, 1, 130.475))
sketch1.addConstraint(Sketcher.Constraint("DistanceY", 35, 2, -1, 1, 57.635))
sketch1.addConstraint(Sketcher.Constraint("DistanceY", 39, 2, -1, 1, 66.495))
sketch1.addConstraint(Sketcher.Constraint("DistanceY", 65, 2, -1, 1, 75.595))
sketch1.addConstraint(Sketcher.Constraint("DistanceY", 69, 2, -1, 1, 84.455))
sketch1.addConstraint(Sketcher.Constraint("DistanceY", 16, 3, -1, 1, 18.779409))
sketch1.addConstraint(Sketcher.Constraint("DistanceX", -1, 1, 17, 3, 348.284991))
sketch1.addConstraint(Sketcher.Constraint("DistanceY", 17, 3, -1, 1, 24.779409))
sketch1.addConstraint(Sketcher.Constraint("DistanceX", -1, 1, 18, 3, 299.595658))
sketch1.addConstraint(Sketcher.Constraint("DistanceX", -1, 1, 58, 3, 348.682121))
sketch1.addConstraint(Sketcher.Constraint("DistanceX", -1, 1, 63, 3, 300.048792))
sketch1.addConstraint(Sketcher.Constraint("DistanceX", -1, 1, 75, 3, 114.94085))
sketch1.addConstraint(Sketcher.Constraint("DistanceY", 75, 3, -1, 1, 111.822591))
sketch1.addConstraint(Sketcher.Constraint("DistanceX", -1, 1, 76, 3, 66.34115))
sketch1.addConstraint(Sketcher.Constraint("DistanceY", 83, 3, -1, 1, 117.822591))
sketch1.addConstraint(Sketcher.Constraint("DistanceX", -1, 1, 55, 2, 393.93031))
sketch1.addConstraint(Sketcher.Constraint("DistanceX", -1, 1, 16, 3, 348.189505))
sketch1.addConstraint(Sketcher.Constraint("DistanceY", 18, 3, -1, 1, 19.552746))
sketch1.addConstraint(Sketcher.Constraint("DistanceX", -1, 1, 19, 3, 299.691144))
sketch1.addConstraint(Sketcher.Constraint("DistanceY", 19, 3, -1, 1, 25.552746))
sketch1.addConstraint(Sketcher.Constraint("DistanceX", -1, 1, 27, 3, 114.864298))
sketch1.addConstraint(Sketcher.Constraint("DistanceY", 27, 3, -1, 1, 30.133818))
sketch1.addConstraint(Sketcher.Constraint("DistanceX", -1, 1, 28, 3, 66.266328))
sketch1.addConstraint(Sketcher.Constraint("DistanceX", -1, 1, 29, 3, 114.918983))
sketch1.addConstraint(Sketcher.Constraint("DistanceY", 29, 3, -1, 1, 36.133818))
sketch1.addConstraint(Sketcher.Constraint("DistanceX", -1, 1, 30, 3, 66.321013))
sketch1.addConstraint(Sketcher.Constraint("DistanceX", -1, 1, 57, 3, 348.648006))
sketch1.addConstraint(Sketcher.Constraint("DistanceY", 57, 3, -1, 1, 103.290943))
sketch1.addConstraint(Sketcher.Constraint("DistanceY", 58, 3, -1, 1, 109.290943))
sketch1.addConstraint(Sketcher.Constraint("DistanceY", 63, 3, -1, 1, 103.567264))
sketch1.addConstraint(Sketcher.Constraint("DistanceX", -1, 1, 64, 3, 300.082906))
sketch1.addConstraint(Sketcher.Constraint("DistanceY", 64, 3, -1, 1, 109.567264))
sketch1.addConstraint(Sketcher.Constraint("DistanceY", 76, 3, -1, 1, 111.651798))
sketch1.addConstraint(Sketcher.Constraint("DistanceX", -1, 1, 83, 3, 114.919764))
sketch1.addConstraint(Sketcher.Constraint("DistanceX", -1, 1, 84, 3, 66.320064))
sketch1.addConstraint(Sketcher.Constraint("DistanceY", 84, 3, -1, 1, 117.651798))
pad1 = body.newObject("PartDesign::Pad", "Pad")
pad1.Profile = sketch1
pad1.Length = 12
pad1.Reversed = True

# Sketch on XZ plane
sketch2 = body.newObject("Sketcher::SketchObject", "Sketch001")
sketch2.AttachmentSupport = (doc.getObject("XZ_Plane"), [""])
sketch2.MapMode = "FlatFace"
sketch2.AttachmentOffset = App.Placement(Vector(0, 0, -12), App.Rotation())
sketch2.addGeometry(Part.Circle(Vector(443.65, -93.65, 0), Vector(0, 0, 1), 2.5), False)  # 0
sketch2.addGeometry(Part.Circle(Vector(443.65, -46.35, 0), Vector(0, 0, 1), 2.5), False)  # 1
add_polygon(sketch2, [(371.432743, -140), (404.996729, -100), (450, -100), (450, -140)])  # lines 2-5
add_polygon(sketch2, [(404.996729, -40), (371.432743, 0), (450, 0), (450, -40)])  # lines 6-9
sketch2.addConstraint(Sketcher.Constraint("Horizontal", 3))
sketch2.addConstraint(Sketcher.Constraint("Vertical", 4))
sketch2.addConstraint(Sketcher.Constraint("Horizontal", 5))
sketch2.addConstraint(Sketcher.Constraint("Horizontal", 7))
sketch2.addConstraint(Sketcher.Constraint("Vertical", 8))
sketch2.addConstraint(Sketcher.Constraint("Horizontal", 9))
sketch2.addConstraint(Sketcher.Constraint("Equal", 0, 1))
sketch2.addConstraint(Sketcher.Constraint("PointOnObject", 6, 2, -1))
sketch2.addConstraint(Sketcher.Constraint("Vertical", 0, 3, 1, 3))
sketch2.addConstraint(Sketcher.Constraint("Vertical", 5, 2, 6, 2))
sketch2.addConstraint(Sketcher.Constraint("Vertical", 4, 2, 7, 2))
sketch2.addConstraint(Sketcher.Constraint("Vertical", 2, 2, 9, 2))
sketch2.addConstraint(Sketcher.Constraint("Equal", 4, 8))
sketch2.addConstraint(Sketcher.Constraint("Diameter", 0, 5.0))
sketch2.addConstraint(Sketcher.Constraint("DistanceY", 4, 2, 4, 1, 40.0))
sketch2.addConstraint(Sketcher.Constraint("Angle", 2, Q("50 deg")))
sketch2.addConstraint(Sketcher.Constraint("DistanceY", 2, 2, -1, 1, 100.0))
sketch2.addConstraint(Sketcher.Constraint("DistanceX", -1, 1, 3, 2, 450.0))
sketch2.addConstraint(Sketcher.Constraint("DistanceY", 0, 3, 1, 3, 47.3))
sketch2.addConstraint(Sketcher.Constraint("DistanceX", -1, 1, 0, 3, 443.65))
sketch2.addConstraint(Sketcher.Constraint("DistanceY", 0, 3, -1, 1, 93.65))
sketch2.addConstraint(Sketcher.Constraint("DistanceX", 3, 1, 3, 2, 45.003271))
pocket1 = body.newObject("PartDesign::Pocket", "Pocket")
pocket1.Profile = sketch2
pocket1.Type = "ThroughAll"
pocket1.Reversed = True

doc.recompute()
